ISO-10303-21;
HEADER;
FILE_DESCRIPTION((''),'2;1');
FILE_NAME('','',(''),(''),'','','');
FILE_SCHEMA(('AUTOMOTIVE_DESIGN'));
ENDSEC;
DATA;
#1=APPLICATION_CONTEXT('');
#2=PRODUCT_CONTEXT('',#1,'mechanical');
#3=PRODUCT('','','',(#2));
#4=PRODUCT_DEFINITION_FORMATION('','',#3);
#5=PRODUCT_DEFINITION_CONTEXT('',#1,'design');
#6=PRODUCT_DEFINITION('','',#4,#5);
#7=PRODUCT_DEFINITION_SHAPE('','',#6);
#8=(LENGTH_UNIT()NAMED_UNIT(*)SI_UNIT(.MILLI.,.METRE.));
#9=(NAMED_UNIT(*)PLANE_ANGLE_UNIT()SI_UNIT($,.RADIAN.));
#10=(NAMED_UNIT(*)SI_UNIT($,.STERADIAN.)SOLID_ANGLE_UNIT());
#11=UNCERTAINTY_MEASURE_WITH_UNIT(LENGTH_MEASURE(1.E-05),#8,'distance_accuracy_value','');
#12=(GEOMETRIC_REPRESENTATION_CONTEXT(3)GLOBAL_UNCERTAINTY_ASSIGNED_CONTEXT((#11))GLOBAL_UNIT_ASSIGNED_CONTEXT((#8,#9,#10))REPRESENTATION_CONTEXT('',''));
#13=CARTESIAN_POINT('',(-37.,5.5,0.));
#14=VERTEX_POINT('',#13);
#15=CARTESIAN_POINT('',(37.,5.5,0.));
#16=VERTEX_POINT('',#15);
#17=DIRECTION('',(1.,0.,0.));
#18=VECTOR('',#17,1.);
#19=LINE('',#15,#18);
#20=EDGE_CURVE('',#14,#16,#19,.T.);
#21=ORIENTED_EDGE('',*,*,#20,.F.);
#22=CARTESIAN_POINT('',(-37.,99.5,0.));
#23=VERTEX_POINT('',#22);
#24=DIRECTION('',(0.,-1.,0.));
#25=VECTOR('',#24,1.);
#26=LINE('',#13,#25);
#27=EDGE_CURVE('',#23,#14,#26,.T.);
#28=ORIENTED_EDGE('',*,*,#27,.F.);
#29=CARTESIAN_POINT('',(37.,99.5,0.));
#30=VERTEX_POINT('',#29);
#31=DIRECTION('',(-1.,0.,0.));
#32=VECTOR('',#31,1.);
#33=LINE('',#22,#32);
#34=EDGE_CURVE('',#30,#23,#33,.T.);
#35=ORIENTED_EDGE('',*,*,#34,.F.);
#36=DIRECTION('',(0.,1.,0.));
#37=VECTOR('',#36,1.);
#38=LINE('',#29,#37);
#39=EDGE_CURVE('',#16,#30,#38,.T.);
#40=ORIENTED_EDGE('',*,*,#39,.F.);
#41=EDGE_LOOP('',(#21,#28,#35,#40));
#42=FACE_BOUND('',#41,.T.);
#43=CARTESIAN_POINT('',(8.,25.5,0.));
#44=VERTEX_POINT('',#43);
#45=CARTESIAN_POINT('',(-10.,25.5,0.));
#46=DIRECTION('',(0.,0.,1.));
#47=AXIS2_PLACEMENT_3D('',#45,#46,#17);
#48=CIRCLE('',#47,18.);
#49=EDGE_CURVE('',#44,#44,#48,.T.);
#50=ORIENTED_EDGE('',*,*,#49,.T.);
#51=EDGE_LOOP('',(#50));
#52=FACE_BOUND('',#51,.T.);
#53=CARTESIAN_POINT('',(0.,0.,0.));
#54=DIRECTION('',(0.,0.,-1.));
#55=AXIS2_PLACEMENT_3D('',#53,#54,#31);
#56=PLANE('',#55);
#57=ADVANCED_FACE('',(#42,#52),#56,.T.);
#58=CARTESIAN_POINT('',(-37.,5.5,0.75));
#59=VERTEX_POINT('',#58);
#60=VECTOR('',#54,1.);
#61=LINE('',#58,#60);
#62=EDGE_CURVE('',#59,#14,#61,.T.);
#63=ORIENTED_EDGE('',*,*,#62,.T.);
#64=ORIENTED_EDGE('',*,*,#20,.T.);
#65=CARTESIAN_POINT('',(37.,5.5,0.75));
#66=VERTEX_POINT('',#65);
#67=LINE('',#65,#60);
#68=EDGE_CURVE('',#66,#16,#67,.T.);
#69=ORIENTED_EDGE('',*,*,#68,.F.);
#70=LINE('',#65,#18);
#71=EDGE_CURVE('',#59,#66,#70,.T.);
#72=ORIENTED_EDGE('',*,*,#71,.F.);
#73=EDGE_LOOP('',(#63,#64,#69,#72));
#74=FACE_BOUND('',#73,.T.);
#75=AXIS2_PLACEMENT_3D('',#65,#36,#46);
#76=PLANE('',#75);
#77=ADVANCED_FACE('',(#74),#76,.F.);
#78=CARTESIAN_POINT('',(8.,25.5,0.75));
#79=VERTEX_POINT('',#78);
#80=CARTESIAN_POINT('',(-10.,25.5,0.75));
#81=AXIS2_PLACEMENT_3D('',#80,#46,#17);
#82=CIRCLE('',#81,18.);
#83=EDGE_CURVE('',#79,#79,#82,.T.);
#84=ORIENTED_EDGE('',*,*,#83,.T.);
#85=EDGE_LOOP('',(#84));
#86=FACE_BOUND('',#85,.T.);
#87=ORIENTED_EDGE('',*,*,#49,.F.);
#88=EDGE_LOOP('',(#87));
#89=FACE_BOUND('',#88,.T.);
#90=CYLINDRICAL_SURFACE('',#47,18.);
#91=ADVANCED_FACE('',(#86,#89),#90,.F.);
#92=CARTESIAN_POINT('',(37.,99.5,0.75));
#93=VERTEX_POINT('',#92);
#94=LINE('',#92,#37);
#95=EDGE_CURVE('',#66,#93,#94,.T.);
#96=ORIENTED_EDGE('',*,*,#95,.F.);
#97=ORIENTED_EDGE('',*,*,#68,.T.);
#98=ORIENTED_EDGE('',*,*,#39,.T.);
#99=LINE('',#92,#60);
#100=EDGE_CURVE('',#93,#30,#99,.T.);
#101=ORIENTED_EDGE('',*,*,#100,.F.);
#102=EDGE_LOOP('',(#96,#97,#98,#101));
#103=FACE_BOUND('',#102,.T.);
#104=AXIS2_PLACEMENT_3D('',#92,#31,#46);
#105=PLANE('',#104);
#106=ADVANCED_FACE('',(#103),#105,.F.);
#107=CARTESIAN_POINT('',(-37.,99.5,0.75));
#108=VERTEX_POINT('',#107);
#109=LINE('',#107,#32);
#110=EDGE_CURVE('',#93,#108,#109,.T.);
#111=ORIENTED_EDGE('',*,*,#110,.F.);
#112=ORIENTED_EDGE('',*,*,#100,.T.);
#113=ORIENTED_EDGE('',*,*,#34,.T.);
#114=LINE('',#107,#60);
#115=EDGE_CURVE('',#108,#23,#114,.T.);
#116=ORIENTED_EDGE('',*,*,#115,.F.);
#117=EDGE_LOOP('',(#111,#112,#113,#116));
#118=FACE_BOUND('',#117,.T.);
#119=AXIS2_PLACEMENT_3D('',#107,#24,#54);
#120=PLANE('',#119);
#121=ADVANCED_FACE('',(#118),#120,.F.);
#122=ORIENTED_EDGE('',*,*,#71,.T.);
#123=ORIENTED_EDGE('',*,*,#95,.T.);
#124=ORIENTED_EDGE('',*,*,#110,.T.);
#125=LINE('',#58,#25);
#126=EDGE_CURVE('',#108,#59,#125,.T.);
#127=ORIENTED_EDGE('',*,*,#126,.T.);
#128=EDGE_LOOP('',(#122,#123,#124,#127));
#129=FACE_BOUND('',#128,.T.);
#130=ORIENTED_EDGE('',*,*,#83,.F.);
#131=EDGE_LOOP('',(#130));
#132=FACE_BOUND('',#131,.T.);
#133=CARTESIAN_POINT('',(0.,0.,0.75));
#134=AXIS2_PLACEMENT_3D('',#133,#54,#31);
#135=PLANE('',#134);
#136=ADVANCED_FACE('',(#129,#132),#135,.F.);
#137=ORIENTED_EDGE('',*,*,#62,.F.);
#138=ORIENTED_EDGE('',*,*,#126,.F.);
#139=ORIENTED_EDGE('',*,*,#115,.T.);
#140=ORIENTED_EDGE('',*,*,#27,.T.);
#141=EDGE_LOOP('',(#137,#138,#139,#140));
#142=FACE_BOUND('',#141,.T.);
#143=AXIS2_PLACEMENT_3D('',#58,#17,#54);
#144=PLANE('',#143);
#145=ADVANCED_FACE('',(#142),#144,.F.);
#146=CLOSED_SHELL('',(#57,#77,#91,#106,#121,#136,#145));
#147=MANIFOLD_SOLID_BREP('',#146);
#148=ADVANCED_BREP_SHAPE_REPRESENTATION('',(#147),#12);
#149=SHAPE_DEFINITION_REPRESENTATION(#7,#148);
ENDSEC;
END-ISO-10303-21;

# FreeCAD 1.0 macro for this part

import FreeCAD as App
import Part
import Sketcher
from FreeCAD import Vector
Q = App.Units.Quantity

doc = App.newDocument("Part")
params = doc.addObject("Spreadsheet::Sheet", "Params")
for row, (alias, value) in enumerate([
    ("sketch1_width", "74 mm"),
    ("sketch1_height", "94 mm"),
    ("pad1_length", "0.75 mm"),
    ("sketch2_diameter", "36 mm"),
], start=1):
    params.set(f"A{row}", alias)
    params.set(f"B{row}", "=" + value)
    params.setAlias(f"B{row}", alias)

body = doc.addObject("PartDesign::Body", "Body")

# Sketch on XY plane
sketch1 = body.newObject("Sketcher::SketchObject", "Sketch")
sketch1.AttachmentSupport = (doc.getObject("XY_Plane"), [""])
sketch1.MapMode = "FlatFace"
sketch1.addGeometry([
    Part.LineSegment(Vector(-37, 99.5, 0), Vector(-37, 5.5, 0)),
    Part.LineSegment(Vector(-37, 5.5, 0), Vector(37, 5.5, 0)),
    Part.LineSegment(Vector(37, 5.5, 0), Vector(37, 99.5, 0)),
    Part.LineSegment(Vector(37, 99.5, 0), Vector(-37, 99.5, 0)),
], False)
sketch1.addConstraint([
    Sketcher.Constraint("Coincident", 0, 2, 1, 1),
    Sketcher.Constraint("Coincident", 1, 2, 2, 1),
    Sketcher.Constraint("Coincident", 2, 2, 3, 1),
    Sketcher.Constraint("Coincident", 3, 2, 0, 1),
    Sketcher.Constraint("Vertical", 0),
    Sketcher.Constraint("Horizontal", 1),
    Sketcher.Constraint("Vertical", 2),
    Sketcher.Constraint("Horizontal", 3),
    Sketcher.Constraint("DistanceX", 1, 1, 1, 2, Q("74 mm")),
    Sketcher.Constraint("DistanceY", 0, 2, 0, 1, Q("94 mm")),
    Sketcher.Constraint("DistanceX", 0, 2, -1, 1, Q("37 mm")),
    Sketcher.Constraint("DistanceY", -1, 1, 0, 2, Q("5.5 mm")),
])
sketch1.setExpression("Constraints[8]", "Params.sketch1_width")
sketch1.setExpression("Constraints[9]", "Params.sketch1_height")
pad1 = body.newObject("PartDesign::Pad", "Pad")
pad1.Profile = sketch1
pad1.setExpression("Length", "Params.pad1_length")

# Sketch on XY plane
sketch2 = body.newObject("Sketcher::SketchObject", "Sketch001")
sketch2.AttachmentSupport = (doc.getObject("XY_Plane"), [""])
sketch2.MapMode = "FlatFace"
sketch2.AttachmentOffset = App.Placement(Vector(0, 0, 0.75), App.Rotation())
sketch2.addGeometry(Part.Circle(Vector(-10, 25.5, 0), Vector(0, 0, 1), 18), False)
sketch2.addConstraint([
    Sketcher.Constraint("Diameter", 0, Q("36 mm")),
    Sketcher.Constraint("DistanceX", 0, 3, -1, 1, Q("10 mm")),
    Sketcher.Constraint("DistanceY", -1, 1, 0, 3, Q("25.5 mm")),
])
sketch2.setExpression("Constraints[0]", "Params.sketch2_diameter")
pocket1 = body.newObject("PartDesign::Pocket", "Pocket")
pocket1.Profile = sketch2
pocket1.Type = "ThroughAll"

doc.recompute()
